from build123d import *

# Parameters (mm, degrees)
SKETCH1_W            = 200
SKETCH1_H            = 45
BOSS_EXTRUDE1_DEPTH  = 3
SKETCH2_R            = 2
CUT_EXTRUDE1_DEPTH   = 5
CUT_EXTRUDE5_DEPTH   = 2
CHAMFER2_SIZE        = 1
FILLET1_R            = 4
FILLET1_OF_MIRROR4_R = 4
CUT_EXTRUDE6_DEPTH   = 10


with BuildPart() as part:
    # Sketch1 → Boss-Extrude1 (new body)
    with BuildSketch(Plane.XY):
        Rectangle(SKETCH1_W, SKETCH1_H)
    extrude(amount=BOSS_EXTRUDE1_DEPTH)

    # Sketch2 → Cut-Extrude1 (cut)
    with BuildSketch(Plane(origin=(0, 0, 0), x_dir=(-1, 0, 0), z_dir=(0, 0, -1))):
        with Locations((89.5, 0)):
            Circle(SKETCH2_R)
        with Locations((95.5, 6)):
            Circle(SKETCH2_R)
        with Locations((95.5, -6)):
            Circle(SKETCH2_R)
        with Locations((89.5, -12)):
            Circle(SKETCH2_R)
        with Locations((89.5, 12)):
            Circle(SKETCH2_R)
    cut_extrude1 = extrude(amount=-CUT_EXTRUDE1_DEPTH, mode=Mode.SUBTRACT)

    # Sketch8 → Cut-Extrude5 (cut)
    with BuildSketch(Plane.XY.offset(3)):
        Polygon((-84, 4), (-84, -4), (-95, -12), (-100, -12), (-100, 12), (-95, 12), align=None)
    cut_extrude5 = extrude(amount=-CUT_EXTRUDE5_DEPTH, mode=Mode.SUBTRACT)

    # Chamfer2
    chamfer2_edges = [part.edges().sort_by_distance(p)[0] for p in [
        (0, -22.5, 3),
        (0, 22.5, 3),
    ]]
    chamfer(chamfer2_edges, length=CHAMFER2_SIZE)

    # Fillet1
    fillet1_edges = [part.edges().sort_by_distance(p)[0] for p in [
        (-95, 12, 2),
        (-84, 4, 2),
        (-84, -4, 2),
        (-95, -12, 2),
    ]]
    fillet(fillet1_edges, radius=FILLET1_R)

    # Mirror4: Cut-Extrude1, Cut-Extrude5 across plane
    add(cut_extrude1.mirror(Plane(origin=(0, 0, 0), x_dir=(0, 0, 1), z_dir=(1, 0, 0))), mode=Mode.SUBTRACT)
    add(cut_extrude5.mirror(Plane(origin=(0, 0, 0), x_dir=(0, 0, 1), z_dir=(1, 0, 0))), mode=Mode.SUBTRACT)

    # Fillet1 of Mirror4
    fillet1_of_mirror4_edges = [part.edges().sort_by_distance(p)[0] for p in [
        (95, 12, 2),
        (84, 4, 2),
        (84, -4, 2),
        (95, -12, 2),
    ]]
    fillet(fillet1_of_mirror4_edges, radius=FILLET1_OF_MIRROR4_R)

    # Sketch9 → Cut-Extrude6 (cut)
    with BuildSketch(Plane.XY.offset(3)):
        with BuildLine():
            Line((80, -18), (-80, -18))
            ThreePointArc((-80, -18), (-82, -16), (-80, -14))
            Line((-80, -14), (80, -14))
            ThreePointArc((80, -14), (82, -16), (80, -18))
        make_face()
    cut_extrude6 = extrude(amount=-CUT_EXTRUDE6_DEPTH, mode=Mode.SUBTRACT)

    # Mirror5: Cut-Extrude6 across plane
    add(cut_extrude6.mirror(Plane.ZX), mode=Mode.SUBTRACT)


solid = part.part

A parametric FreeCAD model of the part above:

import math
import FreeCAD as App
import Part
import Sketcher
from FreeCAD import Vector


def edges_at(feature, points):
    """Names of the edges that pass closest to the given points."""
    edges = feature.Shape.Edges
    near = lambda p: min(range(len(edges)), key=lambda i: edges[i].distToShape(Part.Vertex(*p))[0])
    return sorted({f"Edge{near(p) + 1}" for p in points})

doc = App.newDocument("Part")
body = doc.addObject("PartDesign::Body", "Body")

# Sketch on XY plane
sketch1 = body.newObject("Sketcher::SketchObject", "Sketch")
sketch1.AttachmentSupport = (doc.getObject("XY_Plane"), [""])
sketch1.MapMode = "FlatFace"
sketch1.addGeometry([
    Part.LineSegment(Vector(-100, 22, 0), Vector(-100, -22, 0)),
    Part.LineSegment(Vector(-100, -22, 0), Vector(100, -22, 0)),
    Part.LineSegment(Vector(100, -22, 0), Vector(100, 22, 0)),
    Part.LineSegment(Vector(100, 22, 0), Vector(-100, 22, 0)),
], False)
sketch1.addConstraint([
    Sketcher.Constraint("Coincident", 0, 2, 1, 1),
    Sketcher.Constraint("Coincident", 1, 2, 2, 1),
    Sketcher.Constraint("Coincident", 2, 2, 3, 1),
    Sketcher.Constraint("Coincident", 3, 2, 0, 1),
    Sketcher.Constraint("Vertical", 0),
    Sketcher.Constraint("Horizontal", 1),
    Sketcher.Constraint("Vertical", 2),
    Sketcher.Constraint("Horizontal", 3),
    Sketcher.Constraint("Symmetric", 0, 2, 2, 2, -1, 1),
    Sketcher.Constraint("DistanceX", 1, 1, 1, 2, 200.0),
    Sketcher.Constraint("DistanceY", 0, 2, 0, 1, 45.0),
])
pad1 = body.newObject("PartDesign::Pad", "Pad")
pad1.Profile = sketch1
pad1.Length = 3

# Sketch on XY plane
sketch2 = body.newObject("Sketcher::SketchObject", "Sketch001")
sketch2.AttachmentSupport = (doc.getObject("XY_Plane"), [""])
sketch2.MapMode = "FlatFace"
sketch2.addGeometry([
    Part.Circle(Vector(-89.5, 0, 0), Vector(0, 0, 1), 2),  # 0
    Part.Circle(Vector(-95.5, 6, 0), Vector(0, 0, 1), 2),  # 1
    Part.Circle(Vector(-95.5, -6, 0), Vector(0, 0, 1), 2),  # 2
    Part.Circle(Vector(-89.5, -12, 0), Vector(0, 0, 1), 2),  # 3
    Part.Circle(Vector(-89.5, 12, 0), Vector(0, 0, 1), 2),  # 4
], False)
sketch2.addConstraint([
    Sketcher.Constraint("Equal", 0, 1),
    Sketcher.Constraint("Equal", 1, 2),
    Sketcher.Constraint("Equal", 2, 3),
    Sketcher.Constraint("Equal", 3, 4),
    Sketcher.Constraint("Symmetric", 1, 3, 2, 3, -1),
    Sketcher.Constraint("Symmetric", 3, 3, 4, 3, -1),
    Sketcher.Constraint("PointOnObject", 0, 3, -1),
    Sketcher.Constraint("Vertical", 0, 3, 3, 3),
    Sketcher.Constraint("Diameter", 0, 4.0),
    Sketcher.Constraint("DistanceY", -1, 1, 1, 3, 6.0),
    Sketcher.Constraint("DistanceY", 3, 3, -1, 1, 12.0),
    Sketcher.Constraint("DistanceX", 1, 3, 0, 3, 6.0),
    Sketcher.Constraint("DistanceX", 0, 3, -1, 1, 89.5),
])
pocket1 = body.newObject("PartDesign::Pocket", "Pocket")
pocket1.Profile = sketch2
pocket1.Length = 5
pocket1.Reversed = True

# Sketch on XY plane
sketch3 = body.newObject("Sketcher::SketchObject", "Sketch002")
sketch3.AttachmentSupport = (doc.getObject("XY_Plane"), [""])
sketch3.MapMode = "FlatFace"
sketch3.AttachmentOffset = App.Placement(Vector(0, 0, 3), App.Rotation())
sketch3.addGeometry([
    Part.LineSegment(Vector(-84, -4, 0), Vector(-84, 4, 0)),  # 0
    Part.LineSegment(Vector(-84, 4, 0), Vector(-95, 12, 0)),  # 1
    Part.LineSegment(Vector(-95, 12, 0), Vector(-100, 12, 0)),  # 2
    Part.LineSegment(Vector(-100, 12, 0), Vector(-100, -12, 0)),  # 3
    Part.LineSegment(Vector(-100, -12, 0), Vector(-95, -12, 0)),  # 4
    Part.LineSegment(Vector(-95, -12, 0), Vector(-84, -4, 0)),  # 5
], False)
sketch3.addConstraint([
    Sketcher.Constraint("Coincident", 0, 2, 1, 1),
    Sketcher.Constraint("Coincident", 1, 2, 2, 1),
    Sketcher.Constraint("Coincident", 2, 2, 3, 1),
    Sketcher.Constraint("Coincident", 3, 2, 4, 1),
    Sketcher.Constraint("Coincident", 4, 2, 5, 1),
    Sketcher.Constraint("Coincident", 5, 2, 0, 1),
    Sketcher.Constraint("Vertical", 0),
    Sketcher.Constraint("Horizontal", 2),
    Sketcher.Constraint("Vertical", 3),
    Sketcher.Constraint("Horizontal", 4),
    Sketcher.Constraint("Symmetric", 1, 2, 4, 2, -1),
    Sketcher.Constraint("Equal", 1, 5),
    Sketcher.Constraint("DistanceX", 2, 2, 2, 1, 5.0),
    Sketcher.Constraint("DistanceY", 0, 1, 0, 2, 8.0),
    Sketcher.Constraint("DistanceY", 3, 2, 3, 1, 24.0),
    Sketcher.Constraint("DistanceX", 0, 2, -1, 1, 84.0),
    Sketcher.Constraint("DistanceX", 1, 2, -1, 1, 95.0),
])
pocket2 = body.newObject("PartDesign::Pocket", "Pocket001")
pocket2.Profile = sketch3
pocket2.Length = 2
doc.recompute()

chamfer = body.newObject("PartDesign::Chamfer", "Chamfer")
chamfer.Base = (pocket2, edges_at(pocket2, [(0, -22.5, 3), (0, 22.5, 3)]))
chamfer.Size = 1
doc.recompute()

fillet = body.newObject("PartDesign::Fillet", "Fillet")
fillet.Base = (chamfer, edges_at(chamfer, [
    (-95, 12, 2),
    (-84, 4, 2),
    (-84, -4, 2),
    (-95, -12, 2),
]))
fillet.Radius = 4
doc.recompute()

mirrored = body.newObject("PartDesign::Mirrored", "Mirrored")
mirrored.Originals = [pocket1, pocket2]
mirrored.MirrorPlane = (doc.getObject("YZ_Plane"), [""])
body.Tip = mirrored
doc.recompute()

fillet2 = body.newObject("PartDesign::Fillet", "Fillet001")
fillet2.Base = (mirrored, edges_at(mirrored, [
    (95, 12, 2),
    (84, 4, 2),
    (84, -4, 2),
    (95, -12, 2),
]))
fillet2.Radius = 4

# Sketch on XY plane
sketch4 = body.newObject("Sketcher::SketchObject", "Sketch003")
sketch4.AttachmentSupport = (doc.getObject("XY_Plane"), [""])
sketch4.MapMode = "FlatFace"
sketch4.AttachmentOffset = App.Placement(Vector(0, 0, 3), App.Rotation())
sketch4.addGeometry([
    Part.LineSegment(Vector(-80, -18, 0), Vector(80, -18, 0)),
    Part.ArcOfCircle(Part.Circle(Vector(80, -16, 0), Vector(0, 0, 1), 2), math.radians(-90), math.radians(90)),
    Part.LineSegment(Vector(80, -14, 0), Vector(-80, -14, 0)),
    Part.ArcOfCircle(Part.Circle(Vector(-80, -16, 0), Vector(0, 0, 1), 2), math.radians(90), math.radians(270)),
], False)
sketch4.addConstraint([
    Sketcher.Constraint("Tangent", 0, 2, 1, 1),
    Sketcher.Constraint("Tangent", 1, 2, 2, 1),
    Sketcher.Constraint("Tangent", 2, 2, 3, 1),
    Sketcher.Constraint("Tangent", 3, 2, 0, 1),
    Sketcher.Constraint("Horizontal", 0),
    Sketcher.Constraint("Horizontal", 2),
    Sketcher.Constraint("Radius", 1, 2.0),
    Sketcher.Constraint("DistanceX", 0, 1, 0, 2, 160.0),
    Sketcher.Constraint("DistanceX", -1, 1, 1, 3, 80.0),
    Sketcher.Constraint("DistanceY", 1, 3, -1, 1, 16.0),
])
pocket3 = body.newObject("PartDesign::Pocket", "Pocket002")
pocket3.Profile = sketch4
pocket3.Length = 10
doc.recompute()

mirrored2 = body.newObject("PartDesign::Mirrored", "Mirrored001")
mirrored2.Originals = [pocket3]
mirrored2.MirrorPlane = (doc.getObject("XZ_Plane"), [""])
body.Tip = mirrored2

doc.recompute()
